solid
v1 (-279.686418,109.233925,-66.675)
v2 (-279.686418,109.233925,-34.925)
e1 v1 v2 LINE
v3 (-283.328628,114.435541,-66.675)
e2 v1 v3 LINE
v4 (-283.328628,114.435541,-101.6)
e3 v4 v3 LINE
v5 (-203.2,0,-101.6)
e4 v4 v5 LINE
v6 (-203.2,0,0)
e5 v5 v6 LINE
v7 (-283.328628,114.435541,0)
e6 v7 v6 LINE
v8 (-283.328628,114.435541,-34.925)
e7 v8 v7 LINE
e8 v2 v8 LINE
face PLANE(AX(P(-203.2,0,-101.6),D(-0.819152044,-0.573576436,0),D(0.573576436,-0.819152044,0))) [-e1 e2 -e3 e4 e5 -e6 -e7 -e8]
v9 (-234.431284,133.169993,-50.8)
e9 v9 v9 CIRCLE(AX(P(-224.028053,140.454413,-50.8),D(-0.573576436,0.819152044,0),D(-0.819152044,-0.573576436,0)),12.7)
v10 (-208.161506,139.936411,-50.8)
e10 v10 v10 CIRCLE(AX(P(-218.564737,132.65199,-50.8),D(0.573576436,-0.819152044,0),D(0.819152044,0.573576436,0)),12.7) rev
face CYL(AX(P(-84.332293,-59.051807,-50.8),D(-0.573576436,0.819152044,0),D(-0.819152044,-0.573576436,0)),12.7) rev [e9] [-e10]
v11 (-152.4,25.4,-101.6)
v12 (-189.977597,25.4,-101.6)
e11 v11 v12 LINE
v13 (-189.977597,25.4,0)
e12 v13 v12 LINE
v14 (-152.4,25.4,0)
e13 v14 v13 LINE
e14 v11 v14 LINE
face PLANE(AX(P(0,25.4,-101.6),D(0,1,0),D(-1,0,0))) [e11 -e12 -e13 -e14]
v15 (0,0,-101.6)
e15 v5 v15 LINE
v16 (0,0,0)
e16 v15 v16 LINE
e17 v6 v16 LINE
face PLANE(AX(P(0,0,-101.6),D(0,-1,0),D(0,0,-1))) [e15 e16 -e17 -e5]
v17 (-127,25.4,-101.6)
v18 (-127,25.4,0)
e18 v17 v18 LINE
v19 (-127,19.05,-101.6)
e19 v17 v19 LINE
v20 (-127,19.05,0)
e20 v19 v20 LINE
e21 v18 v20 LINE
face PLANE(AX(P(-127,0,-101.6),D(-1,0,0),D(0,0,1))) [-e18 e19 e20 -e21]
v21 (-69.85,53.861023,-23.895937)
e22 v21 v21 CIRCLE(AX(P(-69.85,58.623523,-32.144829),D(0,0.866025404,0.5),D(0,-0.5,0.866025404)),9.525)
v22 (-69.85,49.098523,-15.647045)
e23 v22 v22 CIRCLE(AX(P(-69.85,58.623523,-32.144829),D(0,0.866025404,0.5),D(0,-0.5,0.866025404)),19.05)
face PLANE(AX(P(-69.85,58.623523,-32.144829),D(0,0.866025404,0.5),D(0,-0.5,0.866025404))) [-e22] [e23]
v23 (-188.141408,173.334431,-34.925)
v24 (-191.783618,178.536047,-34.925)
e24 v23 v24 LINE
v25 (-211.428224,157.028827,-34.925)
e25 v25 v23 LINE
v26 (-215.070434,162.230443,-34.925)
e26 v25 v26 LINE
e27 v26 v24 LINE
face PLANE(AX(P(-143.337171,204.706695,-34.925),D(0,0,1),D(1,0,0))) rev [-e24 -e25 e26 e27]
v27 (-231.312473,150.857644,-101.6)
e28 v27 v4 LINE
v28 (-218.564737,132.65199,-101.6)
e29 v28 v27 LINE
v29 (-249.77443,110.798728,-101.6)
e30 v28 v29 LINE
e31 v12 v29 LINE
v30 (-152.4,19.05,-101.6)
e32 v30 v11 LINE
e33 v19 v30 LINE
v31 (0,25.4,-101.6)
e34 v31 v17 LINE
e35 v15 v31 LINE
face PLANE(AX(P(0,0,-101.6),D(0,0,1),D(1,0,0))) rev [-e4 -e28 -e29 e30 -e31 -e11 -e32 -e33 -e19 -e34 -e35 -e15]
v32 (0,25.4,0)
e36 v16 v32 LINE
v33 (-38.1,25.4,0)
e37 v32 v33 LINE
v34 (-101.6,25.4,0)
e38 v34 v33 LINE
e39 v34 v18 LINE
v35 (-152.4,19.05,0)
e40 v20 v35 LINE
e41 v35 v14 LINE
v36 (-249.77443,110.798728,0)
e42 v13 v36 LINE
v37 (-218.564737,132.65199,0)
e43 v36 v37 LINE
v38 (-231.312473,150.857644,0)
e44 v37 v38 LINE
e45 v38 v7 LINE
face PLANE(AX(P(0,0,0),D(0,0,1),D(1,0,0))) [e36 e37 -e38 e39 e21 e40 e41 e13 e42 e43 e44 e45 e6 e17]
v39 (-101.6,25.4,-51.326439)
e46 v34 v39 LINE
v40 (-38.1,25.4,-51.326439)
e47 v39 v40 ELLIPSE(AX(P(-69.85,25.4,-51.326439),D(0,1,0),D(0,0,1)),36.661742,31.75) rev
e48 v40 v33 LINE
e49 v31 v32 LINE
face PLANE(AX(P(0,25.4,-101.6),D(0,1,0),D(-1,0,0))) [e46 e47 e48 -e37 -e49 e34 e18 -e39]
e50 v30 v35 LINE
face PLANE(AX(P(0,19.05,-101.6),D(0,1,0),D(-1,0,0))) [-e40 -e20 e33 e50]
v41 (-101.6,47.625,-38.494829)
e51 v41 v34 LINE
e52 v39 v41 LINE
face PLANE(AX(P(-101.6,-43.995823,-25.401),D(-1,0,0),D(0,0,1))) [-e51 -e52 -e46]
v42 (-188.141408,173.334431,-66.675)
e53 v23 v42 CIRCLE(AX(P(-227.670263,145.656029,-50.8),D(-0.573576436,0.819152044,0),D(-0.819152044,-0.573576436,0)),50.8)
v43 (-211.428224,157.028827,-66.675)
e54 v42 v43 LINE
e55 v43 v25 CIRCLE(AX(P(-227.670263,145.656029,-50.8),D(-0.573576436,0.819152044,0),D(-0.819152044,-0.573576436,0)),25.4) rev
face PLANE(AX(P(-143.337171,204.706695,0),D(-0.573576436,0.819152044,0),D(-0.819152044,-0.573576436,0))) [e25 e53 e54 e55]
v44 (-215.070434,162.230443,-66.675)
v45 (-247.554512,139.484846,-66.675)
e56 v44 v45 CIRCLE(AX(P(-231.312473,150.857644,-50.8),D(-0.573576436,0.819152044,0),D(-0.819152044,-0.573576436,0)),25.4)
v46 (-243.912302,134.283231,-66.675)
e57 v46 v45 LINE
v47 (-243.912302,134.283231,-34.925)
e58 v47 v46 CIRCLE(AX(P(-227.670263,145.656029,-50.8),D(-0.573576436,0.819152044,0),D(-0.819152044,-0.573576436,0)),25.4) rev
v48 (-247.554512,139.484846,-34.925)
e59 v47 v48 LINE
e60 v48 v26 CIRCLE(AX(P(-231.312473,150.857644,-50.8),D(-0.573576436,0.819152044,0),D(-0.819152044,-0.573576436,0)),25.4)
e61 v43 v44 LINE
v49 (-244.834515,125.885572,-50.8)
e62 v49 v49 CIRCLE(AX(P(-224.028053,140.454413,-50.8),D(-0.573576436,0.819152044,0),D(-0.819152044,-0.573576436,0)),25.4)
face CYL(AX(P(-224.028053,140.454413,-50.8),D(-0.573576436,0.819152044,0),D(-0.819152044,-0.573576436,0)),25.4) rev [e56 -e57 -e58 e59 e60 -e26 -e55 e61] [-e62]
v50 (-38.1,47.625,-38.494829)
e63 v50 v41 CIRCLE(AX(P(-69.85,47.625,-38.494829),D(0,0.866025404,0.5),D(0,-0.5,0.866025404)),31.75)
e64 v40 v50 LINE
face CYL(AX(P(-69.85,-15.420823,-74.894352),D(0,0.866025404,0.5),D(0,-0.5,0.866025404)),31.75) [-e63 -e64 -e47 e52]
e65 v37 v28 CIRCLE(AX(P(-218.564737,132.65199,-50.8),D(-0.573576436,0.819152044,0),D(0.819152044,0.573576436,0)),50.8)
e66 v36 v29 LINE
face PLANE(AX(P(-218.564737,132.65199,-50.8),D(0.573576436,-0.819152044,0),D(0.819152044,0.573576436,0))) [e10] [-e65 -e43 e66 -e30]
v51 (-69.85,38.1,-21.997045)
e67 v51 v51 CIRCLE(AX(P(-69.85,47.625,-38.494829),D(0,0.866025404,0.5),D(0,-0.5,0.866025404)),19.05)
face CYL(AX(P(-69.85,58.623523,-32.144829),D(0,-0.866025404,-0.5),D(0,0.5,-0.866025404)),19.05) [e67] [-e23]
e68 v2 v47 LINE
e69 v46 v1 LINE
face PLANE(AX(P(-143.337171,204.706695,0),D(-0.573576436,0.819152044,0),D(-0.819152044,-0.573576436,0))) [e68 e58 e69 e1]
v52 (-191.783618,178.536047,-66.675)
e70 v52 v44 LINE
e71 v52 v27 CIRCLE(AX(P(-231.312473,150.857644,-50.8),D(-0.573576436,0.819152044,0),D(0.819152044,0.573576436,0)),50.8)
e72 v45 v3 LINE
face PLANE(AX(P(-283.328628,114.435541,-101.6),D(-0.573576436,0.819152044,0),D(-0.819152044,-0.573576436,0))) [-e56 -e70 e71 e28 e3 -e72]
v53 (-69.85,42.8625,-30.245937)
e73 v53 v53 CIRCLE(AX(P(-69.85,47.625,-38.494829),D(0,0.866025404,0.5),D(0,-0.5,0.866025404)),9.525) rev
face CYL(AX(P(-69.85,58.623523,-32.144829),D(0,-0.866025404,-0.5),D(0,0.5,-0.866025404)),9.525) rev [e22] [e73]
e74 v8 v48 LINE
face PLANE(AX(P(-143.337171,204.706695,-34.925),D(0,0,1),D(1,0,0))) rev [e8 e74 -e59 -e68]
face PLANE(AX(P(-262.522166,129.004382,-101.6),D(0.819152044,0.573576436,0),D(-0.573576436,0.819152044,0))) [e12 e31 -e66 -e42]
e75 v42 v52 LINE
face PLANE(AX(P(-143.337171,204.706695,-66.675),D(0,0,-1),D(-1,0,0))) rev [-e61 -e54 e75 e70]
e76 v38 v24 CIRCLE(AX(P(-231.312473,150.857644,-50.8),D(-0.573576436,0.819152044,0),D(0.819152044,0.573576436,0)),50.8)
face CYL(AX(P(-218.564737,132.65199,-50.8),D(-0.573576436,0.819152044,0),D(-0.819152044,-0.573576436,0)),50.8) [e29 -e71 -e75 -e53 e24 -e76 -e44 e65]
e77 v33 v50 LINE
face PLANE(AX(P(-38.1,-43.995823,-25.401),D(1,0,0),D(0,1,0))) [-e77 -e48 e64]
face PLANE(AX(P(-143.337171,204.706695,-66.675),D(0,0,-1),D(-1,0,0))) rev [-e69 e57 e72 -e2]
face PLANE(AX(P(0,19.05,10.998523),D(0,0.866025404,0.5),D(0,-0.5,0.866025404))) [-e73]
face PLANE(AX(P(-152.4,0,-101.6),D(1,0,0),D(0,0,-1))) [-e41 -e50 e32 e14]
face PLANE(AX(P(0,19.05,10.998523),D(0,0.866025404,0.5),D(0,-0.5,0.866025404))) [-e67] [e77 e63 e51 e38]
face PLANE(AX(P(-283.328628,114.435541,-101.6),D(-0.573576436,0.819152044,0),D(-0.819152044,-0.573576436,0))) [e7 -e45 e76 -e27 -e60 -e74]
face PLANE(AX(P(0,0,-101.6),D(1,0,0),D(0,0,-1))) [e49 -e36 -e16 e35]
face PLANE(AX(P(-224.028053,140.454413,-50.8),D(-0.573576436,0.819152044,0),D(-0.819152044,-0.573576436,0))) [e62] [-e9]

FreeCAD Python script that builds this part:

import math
import FreeCAD as App
import Part
import Sketcher
Q = App.Units.Quantity

doc = App.newDocument("Part")
params = doc.addObject("Spreadsheet::Sheet", "Params")
for row, (alias, value) in enumerate([
    ("sketch1_width", "8 in"),
    ("sketch1_height", "1 in"),
    ("pad1_length", "4 in"),
    ("sketch2_width", "1 in"),
    ("sketch2_height", "0.25 in"),
    ("sketch3_radius", "1.25 in"),
    ("sketch3_height", "1.75 in"),
    ("sketch4_diameter", "1.5 in"),
    ("sketch4_diameter2", "0.75 in"),
    ("pad3_length", "0.5 in"),
    ("sketch5_length", "1 in"),
    ("sketch5_length2", "5.5 in"),
    ("pad4_length", "4 in"),
    ("sketch6_radius", "2 in"),
    ("sketch6_width", "2.5 in"),
    ("pad5_length", "0.875 in"),
    ("sketch7_diameter", "2 in"),
    ("sketch7_diameter2", "1 in"),
    ("pocket2_length", "0.5 in"),
    ("sketch8_diameter", "1 in"),
    ("sketch9_radius", "2 in"),
    ("sketch9_radius2", "1 in"),
    ("sketch9_height", "1.25 in"),
    ("pocket4_length", "0.25 in"),
], start=1):
    params.set(f"A{row}", alias)
    params.set(f"B{row}", "=" + value)
    params.setAlias(f"B{row}", alias)

body = doc.addObject("PartDesign::Body", "Body")

# Sketch on XY plane
sketch1 = body.newObject("Sketcher::SketchObject", "Sketch")
sketch1.AttachmentSupport = (doc.getObject("XY_Plane"), [""])
sketch1.MapMode = "FlatFace"
sketch1.addGeometry([
    Part.LineSegment(App.Vector(-203, 25, 0), App.Vector(-203, 0, 0)),
    Part.LineSegment(App.Vector(-203, 0, 0), App.Vector(0, 0, 0)),
    Part.LineSegment(App.Vector(0, 0, 0), App.Vector(0, 25, 0)),
    Part.LineSegment(App.Vector(0, 25, 0), App.Vector(-203, 25, 0)),
], False)
sketch1.addConstraint([
    Sketcher.Constraint("Coincident", 0, 2, 1, 1),
    Sketcher.Constraint("Coincident", 1, 2, 2, 1),
    Sketcher.Constraint("Coincident", 2, 2, 3, 1),
    Sketcher.Constraint("Coincident", 3, 2, 0, 1),
    Sketcher.Constraint("Vertical", 0),
    Sketcher.Constraint("Horizontal", 1),
    Sketcher.Constraint("Vertical", 2),
    Sketcher.Constraint("Horizontal", 3),
    Sketcher.Constraint("Coincident", 1, 2, -1, 1),
    Sketcher.Constraint("DistanceX", 1, 1, 1, 2, Q("8 in")),
    Sketcher.Constraint("DistanceY", 0, 2, 0, 1, Q("1 in")),
])
sketch1.setExpression("Constraints[9]", "Params.sketch1_width")
sketch1.setExpression("Constraints[10]", "Params.sketch1_height")
pad1 = body.newObject("PartDesign::Pad", "Pad")
pad1.Profile = sketch1
pad1.setExpression("Length", "Params.pad1_length")
pad1.Reversed = True

# Sketch on XY plane
sketch2 = body.newObject("Sketcher::SketchObject", "Sketch001")
sketch2.AttachmentSupport = (doc.getObject("XY_Plane"), [""])
sketch2.MapMode = "FlatFace"
sketch2.addGeometry([
    Part.LineSegment(App.Vector(-152, 25, 0), App.Vector(-152, 19, 0)),
    Part.LineSegment(App.Vector(-152, 19, 0), App.Vector(-127, 19, 0)),
    Part.LineSegment(App.Vector(-127, 19, 0), App.Vector(-127, 25, 0)),
    Part.LineSegment(App.Vector(-127, 25, 0), App.Vector(-152, 25, 0)),
], False)
sketch2.addConstraint([
    Sketcher.Constraint("Coincident", 0, 2, 1, 1),
    Sketcher.Constraint("Coincident", 1, 2, 2, 1),
    Sketcher.Constraint("Coincident", 2, 2, 3, 1),
    Sketcher.Constraint("Coincident", 3, 2, 0, 1),
    Sketcher.Constraint("Vertical", 0),
    Sketcher.Constraint("Horizontal", 1),
    Sketcher.Constraint("Vertical", 2),
    Sketcher.Constraint("Horizontal", 3),
    Sketcher.Constraint("DistanceX", 1, 1, 1, 2, Q("1 in")),
    Sketcher.Constraint("DistanceX", 0, 2, -1, 1, Q("6 in")),
    Sketcher.Constraint("DistanceY", -1, 1, 2, 2, Q("1 in")),
    Sketcher.Constraint("DistanceY", 0, 2, 0, 1, Q("0.25 in")),
])
sketch2.setExpression("Constraints[8]", "Params.sketch2_width")
sketch2.setExpression("Constraints[11]", "Params.sketch2_height")
pocket1 = body.newObject("PartDesign::Pocket", "Pocket")
pocket1.Profile = sketch2
pocket1.Type = "ThroughAll"

# Sketch on an angled plane
sketch3 = body.newObject("Sketcher::SketchObject", "Sketch002")
sketch3.Placement = App.Placement(App.Vector(0, 19.05, 10.998523), App.Rotation(App.Vector(-1, 0, 0), App.Vector(0, -0.5, 0.866025404), App.Vector(0, 0.866025404, 0.5), "ZXY"))
sketch3.addGeometry([
    Part.LineSegment(App.Vector(38, -13, 0), App.Vector(38, -57, 0)),
    Part.ArcOfCircle(Part.Circle(App.Vector(70, -57, 0), App.Vector(0, 0, 1), 32), math.radians(180), math.radians(360)),
    Part.LineSegment(App.Vector(102, -57, 0), App.Vector(102, -13, 0)),
    Part.LineSegment(App.Vector(102, -13, 0), App.Vector(38, -13, 0)),
], False)
sketch3.addConstraint([
    Sketcher.Constraint("Tangent", 0, 2, 1, 1),
    Sketcher.Constraint("Tangent", 1, 2, 2, 1),
    Sketcher.Constraint("Coincident", 2, 2, 3, 1),
    Sketcher.Constraint("Coincident", 3, 2, 0, 1),
    Sketcher.Constraint("Vertical", 0),
    Sketcher.Constraint("Vertical", 2),
    Sketcher.Constraint("Horizontal", 3),
    Sketcher.Constraint("Radius", 1, Q("1.25 in")),
    Sketcher.Constraint("DistanceX", -1, 1, 1, 2, Q("4 in")),
    Sketcher.Constraint("DistanceY", 0, 2, 0, 1, Q("1.75 in")),
    Sketcher.Constraint("DistanceY", 2, 2, -1, 1, Q("0.5 in")),
])
sketch3.setExpression("Constraints[7]", "Params.sketch3_radius")
sketch3.setExpression("Constraints[9]", "Params.sketch3_height")
pad2 = body.newObject("PartDesign::Pad", "Pad001")
pad2.Profile = sketch3
pad2.Type = "UpToFirst"
pad2.Reversed = True

# Sketch on an angled plane
sketch4 = body.newObject("Sketcher::SketchObject", "Sketch003")
sketch4.Placement = App.Placement(App.Vector(0, 19.05, 10.998523), App.Rotation(App.Vector(1, 0, 0), App.Vector(0, 0.5, -0.866025404), App.Vector(0, 0.866025404, 0.5), "ZXY"))
sketch4.addGeometry([
    Part.Circle(App.Vector(-70, 57, 0), App.Vector(0, 0, 1), 19),
    Part.Circle(App.Vector(-70, 57, 0), App.Vector(0, 0, 1), 10),
], False)
sketch4.addConstraint([
    Sketcher.Constraint("Coincident", 1, 3, 0, 3),
    Sketcher.Constraint("Diameter", 0, Q("1.5 in")),
    Sketcher.Constraint("Diameter", 1, Q("0.75 in")),
    Sketcher.Constraint("DistanceX", 0, 3, -1, 1, Q("2.75 in")),
    Sketcher.Constraint("DistanceY", -1, 1, 0, 3, Q("2.25 in")),
])
sketch4.setExpression("Constraints[1]", "Params.sketch4_diameter")
sketch4.setExpression("Constraints[2]", "Params.sketch4_diameter2")
pad3 = body.newObject("PartDesign::Pad", "Pad002")
pad3.Profile = sketch4
pad3.setExpression("Length", "Params.pad3_length")

# Sketch on XY plane
sketch5 = body.newObject("Sketcher::SketchObject", "Sketch004")
sketch5.AttachmentSupport = (doc.getObject("XY_Plane"), [""])
sketch5.MapMode = "FlatFace"
sketch5.addGeometry([
    Part.LineSegment(App.Vector(-283, 114, 0), App.Vector(-203, 0, 0)),
    Part.LineSegment(App.Vector(-203, 0, 0), App.Vector(-182, 15, 0)),
    Part.LineSegment(App.Vector(-182, 15, 0), App.Vector(-263, 129, 0)),
    Part.LineSegment(App.Vector(-263, 129, 0), App.Vector(-283, 114, 0)),
], False)
sketch5.addConstraint([
    Sketcher.Constraint("Coincident", 0, 2, 1, 1),
    Sketcher.Constraint("Coincident", 1, 2, 2, 1),
    Sketcher.Constraint("Coincident", 2, 2, 3, 1),
    Sketcher.Constraint("Coincident", 3, 2, 0, 1),
    Sketcher.Constraint("PointOnObject", 0, 2, -1),
    Sketcher.Constraint("Perpendicular", 0, 1),
    Sketcher.Constraint("Perpendicular", 1, 2),
    Sketcher.Constraint("Perpendicular", 2, 3),
    Sketcher.Constraint("Distance", 1, Q("1 in")),
    Sketcher.Constraint("DistanceX", 0, 2, -1, 1, Q("8 in")),
    Sketcher.Constraint("Angle", 0, Q("-55 deg")),
    Sketcher.Constraint("Distance", 0, Q("5.5 in")),
])
sketch5.setExpression("Constraints[8]", "Params.sketch5_length")
sketch5.setExpression("Constraints[11]", "Params.sketch5_length2")
pad4 = body.newObject("PartDesign::Pad", "Pad003")
pad4.Profile = sketch5
pad4.setExpression("Length", "Params.pad4_length")
pad4.Reversed = True

# Sketch on an angled plane
sketch6 = body.newObject("Sketcher::SketchObject", "Sketch005")
sketch6.Placement = App.Placement(App.Vector(-146.979382, 209.908311, 0), App.Rotation(App.Vector(0.819152044, 0.573576436, 0), App.Vector(0, 0, -0.999999999), App.Vector(-0.573576436, 0.819152044, 0), "ZXY"))
sketch6.addGeometry([
    Part.LineSegment(App.Vector(-166, 0, 0), App.Vector(-103, 0, 0)),
    Part.ArcOfCircle(Part.Circle(App.Vector(-103, 51, 0), App.Vector(0, 0, 1), 51), math.radians(-90), math.radians(90)),
    Part.LineSegment(App.Vector(-103, 102, 0), App.Vector(-166, 102, 0)),
    Part.LineSegment(App.Vector(-166, 102, 0), App.Vector(-166, 0, 0)),
], False)
sketch6.addConstraint([
    Sketcher.Constraint("Tangent", 0, 2, 1, 1),
    Sketcher.Constraint("Tangent", 1, 2, 2, 1),
    Sketcher.Constraint("Coincident", 2, 2, 3, 1),
    Sketcher.Constraint("Coincident", 3, 2, 0, 1),
    Sketcher.Constraint("Horizontal", 0),
    Sketcher.Constraint("Horizontal", 2),
    Sketcher.Constraint("Vertical", 3),
    Sketcher.Constraint("PointOnObject", 0, 2, -1),
    Sketcher.Constraint("Radius", 1, Q("2 in")),
    Sketcher.Constraint("DistanceX", 0, 1, 0, 2, Q("2.5 in")),
    Sketcher.Constraint("DistanceX", 1, 3, -1, 1, Q("102.951695 mm")),
])
sketch6.setExpression("Constraints[8]", "Params.sketch6_radius")
sketch6.setExpression("Constraints[9]", "Params.sketch6_width")
pad5 = body.newObject("PartDesign::Pad", "Pad004")
pad5.Profile = sketch6
pad5.setExpression("Length", "Params.pad5_length")
pad5.Reversed = True

# Sketch on an angled plane
sketch7 = body.newObject("Sketcher::SketchObject", "Sketch006")
sketch7.Placement = App.Placement(App.Vector(-146.979382, 209.908311, 0), App.Rotation(App.Vector(0.819152044, 0.573576436, 0), App.Vector(0, 0, -0.999999999), App.Vector(-0.573576436, 0.819152044, 0), "ZXY"))
sketch7.addGeometry([
    Part.Circle(App.Vector(-103, 51, 0), App.Vector(0, 0, 1), 25),
    Part.Circle(App.Vector(-103, 51, 0), App.Vector(0, 0, 1), 13),
], False)
sketch7.addConstraint([
    Sketcher.Constraint("Coincident", 1, 3, 0, 3),
    Sketcher.Constraint("Diameter", 0, Q("2 in")),
    Sketcher.Constraint("Diameter", 1, Q("1 in")),
    Sketcher.Constraint("DistanceY", -1, 1, 0, 3, Q("2 in")),
    Sketcher.Constraint("DistanceX", 0, 3, -1, 1, Q("102.951695 mm")),
])
sketch7.setExpression("Constraints[1]", "Params.sketch7_diameter")
sketch7.setExpression("Constraints[2]", "Params.sketch7_diameter2")
pocket2 = body.newObject("PartDesign::Pocket", "Pocket001")
pocket2.Profile = sketch7
pocket2.setExpression("Length", "Params.pocket2_length")

# Sketch on an angled plane
sketch8 = body.newObject("Sketcher::SketchObject", "Sketch007")
sketch8.Placement = App.Placement(App.Vector(-146.979382, 209.908311, 0), App.Rotation(App.Vector(0.819152044, 0.573576436, 0), App.Vector(0, 0, -0.999999999), App.Vector(-0.573576436, 0.819152044, 0), "ZXY"))
sketch8.addGeometry(Part.Circle(App.Vector(-103, 51, 0), App.Vector(0, 0, 1), 13), False)
sketch8.addConstraint([
    Sketcher.Constraint("Diameter", 0, Q("1 in")),
    Sketcher.Constraint("DistanceY", -1, 1, 0, 3, Q("2 in")),
    Sketcher.Constraint("DistanceX", 0, 3, -1, 1, Q("102.951695 mm")),
])
sketch8.setExpression("Constraints[0]", "Params.sketch8_diameter")
pocket3 = body.newObject("PartDesign::Pocket", "Pocket002")
pocket3.Profile = sketch8
pocket3.Type = "UpToFirst"

# Sketch on an angled plane
sketch9 = body.newObject("Sketcher::SketchObject", "Sketch008")
sketch9.Placement = App.Placement(App.Vector(-146.979382, 209.908311, 0), App.Rotation(App.Vector(0.819152044, 0.573576436, 0), App.Vector(0, 0, -0.999999999), App.Vector(-0.573576436, 0.819152044, 0), "ZXY"))
sketch9.addGeometry([
    Part.ArcOfCircle(Part.Circle(App.Vector(-103, 51, 0), App.Vector(0, 0, 1), 51), math.radians(-18), math.radians(18)),  # 0
    Part.LineSegment(App.Vector(-55, 67, 0), App.Vector(-83, 67, 0)),  # 1
    Part.ArcOfCircle(Part.Circle(App.Vector(-103, 51, 0), App.Vector(0, 0, 1), 25), math.radians(0), math.radians(39)),  # 2
    Part.ArcOfCircle(Part.Circle(App.Vector(-103, 51, 0), App.Vector(0, 0, 1), 25), math.radians(-39), math.radians(0)),  # 3
    Part.LineSegment(App.Vector(-83, 35, 0), App.Vector(-55, 35, 0)),  # 4
    Part.ArcOfCircle(Part.Circle(App.Vector(-103, 51, 0), App.Vector(0, 0, 1), 25), math.radians(141), math.radians(219)),  # 5
    Part.LineSegment(App.Vector(-123, 67, 0), App.Vector(-166, 67, 0)),  # 6
    Part.LineSegment(App.Vector(-166, 67, 0), App.Vector(-166, 35, 0)),  # 7
    Part.LineSegment(App.Vector(-166, 35, 0), App.Vector(-123, 35, 0)),  # 8
], False)
sketch9.addConstraint([
    Sketcher.Constraint("Coincident", 0, 2, 1, 1),
    Sketcher.Constraint("Coincident", 1, 2, 2, 2),
    Sketcher.Constraint("Tangent", 2, 1, 3, 2),
    Sketcher.Constraint("Coincident", 3, 1, 4, 1),
    Sketcher.Constraint("Coincident", 4, 2, 0, 1),
    Sketcher.Constraint("Coincident", 5, 1, 6, 1),
    Sketcher.Constraint("Coincident", 6, 2, 7, 1),
    Sketcher.Constraint("Coincident", 7, 2, 8, 1),
    Sketcher.Constraint("Coincident", 8, 2, 5, 2),
    Sketcher.Constraint("Horizontal", 1),
    Sketcher.Constraint("Horizontal", 4),
    Sketcher.Constraint("Horizontal", 6),
    Sketcher.Constraint("Vertical", 7),
    Sketcher.Constraint("Horizontal", 8),
    Sketcher.Constraint("Coincident", 2, 3, 0, 3),
    Sketcher.Constraint("Coincident", 5, 3, 0, 3),
    Sketcher.Constraint("Equal", 2, 3),
    Sketcher.Constraint("Equal", 3, 5),
    Sketcher.Constraint("Horizontal", 5, 3, 2, 1),
    Sketcher.Constraint("Horizontal", 1, 2, 5, 1),
    Sketcher.Constraint("Horizontal", 4, 2, 7, 2),
    Sketcher.Constraint("Vertical", 1, 2, 3, 1),
    Sketcher.Constraint("Radius", 0, Q("2 in")),
    Sketcher.Constraint("Radius", 2, Q("1 in")),
    Sketcher.Constraint("DistanceY", -1, 1, 0, 3, Q("2 in")),
    Sketcher.Constraint("DistanceY", 7, 2, 7, 1, Q("1.25 in")),
    Sketcher.Constraint("DistanceX", 6, 2, 0, 3, Q("2.5 in")),
    Sketcher.Constraint("DistanceX", 0, 3, -1, 1, Q("102.951695 mm")),
])
sketch9.setExpression("Constraints[22]", "Params.sketch9_radius")
sketch9.setExpression("Constraints[23]", "Params.sketch9_radius2")
sketch9.setExpression("Constraints[25]", "Params.sketch9_height")
pocket4 = body.newObject("PartDesign::Pocket", "Pocket003")
pocket4.Profile = sketch9
pocket4.setExpression("Length", "Params.pocket4_length")

doc.recompute()
